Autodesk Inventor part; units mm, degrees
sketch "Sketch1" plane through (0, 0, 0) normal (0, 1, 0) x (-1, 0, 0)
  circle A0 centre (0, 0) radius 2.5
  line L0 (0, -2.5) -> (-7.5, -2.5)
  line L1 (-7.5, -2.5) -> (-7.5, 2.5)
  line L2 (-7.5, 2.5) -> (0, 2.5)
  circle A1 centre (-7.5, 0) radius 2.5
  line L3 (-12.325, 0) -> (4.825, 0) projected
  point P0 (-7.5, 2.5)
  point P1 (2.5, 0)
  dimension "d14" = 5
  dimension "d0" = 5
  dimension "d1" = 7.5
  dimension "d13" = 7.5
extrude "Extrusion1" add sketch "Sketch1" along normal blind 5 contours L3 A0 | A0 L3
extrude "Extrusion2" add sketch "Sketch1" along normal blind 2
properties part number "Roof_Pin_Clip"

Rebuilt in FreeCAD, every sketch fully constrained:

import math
import FreeCAD as App
import Part
import Sketcher
from FreeCAD import Vector

doc = App.newDocument("Part")
params = doc.addObject("Spreadsheet::Sheet", "Params")
for row, (alias, value) in enumerate([
    ("sketch1_diameter", "5 mm"),
    ("pad1_length", "5 mm"),
    ("sketch2_radius", "2.5 mm"),
    ("sketch2_width", "7.5 mm"),
    ("pad2_length", "2 mm"),
], start=1):
    params.set(f"A{row}", alias)
    params.set(f"B{row}", "=" + value)
    params.setAlias(f"B{row}", alias)

body = doc.addObject("PartDesign::Body", "Body")

# Sketch on XZ plane
sketch1 = body.newObject("Sketcher::SketchObject", "Sketch")
sketch1.AttachmentSupport = (doc.getObject("XZ_Plane"), [""])
sketch1.MapMode = "FlatFace"
sketch1.addGeometry(Part.Circle(Vector(0, 0, 0), Vector(0, 0, 1), 2.5), False)
sketch1.addConstraint(Sketcher.Constraint("Coincident", 0, 3, -1, 1))
sketch1.addConstraint(Sketcher.Constraint("Diameter", 0, 5.0))
sketch1.setExpression("Constraints[1]", "Params.sketch1_diameter")
pad1 = body.newObject("PartDesign::Pad", "Pad")
pad1.Profile = sketch1
pad1.setExpression("Length", "Params.pad1_length")
pad1.Reversed = True

# Sketch on XZ plane
sketch2 = body.newObject("Sketcher::SketchObject", "Sketch001")
sketch2.AttachmentSupport = (doc.getObject("XZ_Plane"), [""])
sketch2.MapMode = "FlatFace"
sketch2.addGeometry(Part.LineSegment(Vector(0, 2.5, 0), Vector(7.5, 2.5, 0)), False)
sketch2.addGeometry(Part.ArcOfCircle(Part.Circle(Vector(7.5, 0, 0), Vector(0, 0, 1), 2.5), math.radians(-90), math.radians(90)), False)
sketch2.addGeometry(Part.LineSegment(Vector(7.5, -2.5, 0), Vector(0, -2.5, 0)), False)
sketch2.addGeometry(Part.ArcOfCircle(Part.Circle(Vector(0, 0, 0), Vector(0, 0, 1), 2.5), math.radians(90), math.radians(270)), False)
sketch2.addConstraint(Sketcher.Constraint("Tangent", 0, 2, 1, 2))
sketch2.addConstraint(Sketcher.Constraint("Tangent", 1, 1, 2, 1))
sketch2.addConstraint(Sketcher.Constraint("Tangent", 2, 2, 3, 2))
sketch2.addConstraint(Sketcher.Constraint("Tangent", 3, 1, 0, 1))
sketch2.addConstraint(Sketcher.Constraint("Horizontal", 0))
sketch2.addConstraint(Sketcher.Constraint("Horizontal", 2))
sketch2.addConstraint(Sketcher.Constraint("Coincident", 3, 3, -1, 1))
sketch2.addConstraint(Sketcher.Constraint("Radius", 1, 2.5))
sketch2.addConstraint(Sketcher.Constraint("DistanceX", 0, 1, 0, 2, 7.5))
sketch2.setExpression("Constraints[7]", "Params.sketch2_radius")
sketch2.setExpression("Constraints[8]", "Params.sketch2_width")
pad2 = body.newObject("PartDesign::Pad", "Pad001")
pad2.Profile = sketch2
pad2.setExpression("Length", "Params.pad2_length")
pad2.Reversed = True

doc.recompute()
